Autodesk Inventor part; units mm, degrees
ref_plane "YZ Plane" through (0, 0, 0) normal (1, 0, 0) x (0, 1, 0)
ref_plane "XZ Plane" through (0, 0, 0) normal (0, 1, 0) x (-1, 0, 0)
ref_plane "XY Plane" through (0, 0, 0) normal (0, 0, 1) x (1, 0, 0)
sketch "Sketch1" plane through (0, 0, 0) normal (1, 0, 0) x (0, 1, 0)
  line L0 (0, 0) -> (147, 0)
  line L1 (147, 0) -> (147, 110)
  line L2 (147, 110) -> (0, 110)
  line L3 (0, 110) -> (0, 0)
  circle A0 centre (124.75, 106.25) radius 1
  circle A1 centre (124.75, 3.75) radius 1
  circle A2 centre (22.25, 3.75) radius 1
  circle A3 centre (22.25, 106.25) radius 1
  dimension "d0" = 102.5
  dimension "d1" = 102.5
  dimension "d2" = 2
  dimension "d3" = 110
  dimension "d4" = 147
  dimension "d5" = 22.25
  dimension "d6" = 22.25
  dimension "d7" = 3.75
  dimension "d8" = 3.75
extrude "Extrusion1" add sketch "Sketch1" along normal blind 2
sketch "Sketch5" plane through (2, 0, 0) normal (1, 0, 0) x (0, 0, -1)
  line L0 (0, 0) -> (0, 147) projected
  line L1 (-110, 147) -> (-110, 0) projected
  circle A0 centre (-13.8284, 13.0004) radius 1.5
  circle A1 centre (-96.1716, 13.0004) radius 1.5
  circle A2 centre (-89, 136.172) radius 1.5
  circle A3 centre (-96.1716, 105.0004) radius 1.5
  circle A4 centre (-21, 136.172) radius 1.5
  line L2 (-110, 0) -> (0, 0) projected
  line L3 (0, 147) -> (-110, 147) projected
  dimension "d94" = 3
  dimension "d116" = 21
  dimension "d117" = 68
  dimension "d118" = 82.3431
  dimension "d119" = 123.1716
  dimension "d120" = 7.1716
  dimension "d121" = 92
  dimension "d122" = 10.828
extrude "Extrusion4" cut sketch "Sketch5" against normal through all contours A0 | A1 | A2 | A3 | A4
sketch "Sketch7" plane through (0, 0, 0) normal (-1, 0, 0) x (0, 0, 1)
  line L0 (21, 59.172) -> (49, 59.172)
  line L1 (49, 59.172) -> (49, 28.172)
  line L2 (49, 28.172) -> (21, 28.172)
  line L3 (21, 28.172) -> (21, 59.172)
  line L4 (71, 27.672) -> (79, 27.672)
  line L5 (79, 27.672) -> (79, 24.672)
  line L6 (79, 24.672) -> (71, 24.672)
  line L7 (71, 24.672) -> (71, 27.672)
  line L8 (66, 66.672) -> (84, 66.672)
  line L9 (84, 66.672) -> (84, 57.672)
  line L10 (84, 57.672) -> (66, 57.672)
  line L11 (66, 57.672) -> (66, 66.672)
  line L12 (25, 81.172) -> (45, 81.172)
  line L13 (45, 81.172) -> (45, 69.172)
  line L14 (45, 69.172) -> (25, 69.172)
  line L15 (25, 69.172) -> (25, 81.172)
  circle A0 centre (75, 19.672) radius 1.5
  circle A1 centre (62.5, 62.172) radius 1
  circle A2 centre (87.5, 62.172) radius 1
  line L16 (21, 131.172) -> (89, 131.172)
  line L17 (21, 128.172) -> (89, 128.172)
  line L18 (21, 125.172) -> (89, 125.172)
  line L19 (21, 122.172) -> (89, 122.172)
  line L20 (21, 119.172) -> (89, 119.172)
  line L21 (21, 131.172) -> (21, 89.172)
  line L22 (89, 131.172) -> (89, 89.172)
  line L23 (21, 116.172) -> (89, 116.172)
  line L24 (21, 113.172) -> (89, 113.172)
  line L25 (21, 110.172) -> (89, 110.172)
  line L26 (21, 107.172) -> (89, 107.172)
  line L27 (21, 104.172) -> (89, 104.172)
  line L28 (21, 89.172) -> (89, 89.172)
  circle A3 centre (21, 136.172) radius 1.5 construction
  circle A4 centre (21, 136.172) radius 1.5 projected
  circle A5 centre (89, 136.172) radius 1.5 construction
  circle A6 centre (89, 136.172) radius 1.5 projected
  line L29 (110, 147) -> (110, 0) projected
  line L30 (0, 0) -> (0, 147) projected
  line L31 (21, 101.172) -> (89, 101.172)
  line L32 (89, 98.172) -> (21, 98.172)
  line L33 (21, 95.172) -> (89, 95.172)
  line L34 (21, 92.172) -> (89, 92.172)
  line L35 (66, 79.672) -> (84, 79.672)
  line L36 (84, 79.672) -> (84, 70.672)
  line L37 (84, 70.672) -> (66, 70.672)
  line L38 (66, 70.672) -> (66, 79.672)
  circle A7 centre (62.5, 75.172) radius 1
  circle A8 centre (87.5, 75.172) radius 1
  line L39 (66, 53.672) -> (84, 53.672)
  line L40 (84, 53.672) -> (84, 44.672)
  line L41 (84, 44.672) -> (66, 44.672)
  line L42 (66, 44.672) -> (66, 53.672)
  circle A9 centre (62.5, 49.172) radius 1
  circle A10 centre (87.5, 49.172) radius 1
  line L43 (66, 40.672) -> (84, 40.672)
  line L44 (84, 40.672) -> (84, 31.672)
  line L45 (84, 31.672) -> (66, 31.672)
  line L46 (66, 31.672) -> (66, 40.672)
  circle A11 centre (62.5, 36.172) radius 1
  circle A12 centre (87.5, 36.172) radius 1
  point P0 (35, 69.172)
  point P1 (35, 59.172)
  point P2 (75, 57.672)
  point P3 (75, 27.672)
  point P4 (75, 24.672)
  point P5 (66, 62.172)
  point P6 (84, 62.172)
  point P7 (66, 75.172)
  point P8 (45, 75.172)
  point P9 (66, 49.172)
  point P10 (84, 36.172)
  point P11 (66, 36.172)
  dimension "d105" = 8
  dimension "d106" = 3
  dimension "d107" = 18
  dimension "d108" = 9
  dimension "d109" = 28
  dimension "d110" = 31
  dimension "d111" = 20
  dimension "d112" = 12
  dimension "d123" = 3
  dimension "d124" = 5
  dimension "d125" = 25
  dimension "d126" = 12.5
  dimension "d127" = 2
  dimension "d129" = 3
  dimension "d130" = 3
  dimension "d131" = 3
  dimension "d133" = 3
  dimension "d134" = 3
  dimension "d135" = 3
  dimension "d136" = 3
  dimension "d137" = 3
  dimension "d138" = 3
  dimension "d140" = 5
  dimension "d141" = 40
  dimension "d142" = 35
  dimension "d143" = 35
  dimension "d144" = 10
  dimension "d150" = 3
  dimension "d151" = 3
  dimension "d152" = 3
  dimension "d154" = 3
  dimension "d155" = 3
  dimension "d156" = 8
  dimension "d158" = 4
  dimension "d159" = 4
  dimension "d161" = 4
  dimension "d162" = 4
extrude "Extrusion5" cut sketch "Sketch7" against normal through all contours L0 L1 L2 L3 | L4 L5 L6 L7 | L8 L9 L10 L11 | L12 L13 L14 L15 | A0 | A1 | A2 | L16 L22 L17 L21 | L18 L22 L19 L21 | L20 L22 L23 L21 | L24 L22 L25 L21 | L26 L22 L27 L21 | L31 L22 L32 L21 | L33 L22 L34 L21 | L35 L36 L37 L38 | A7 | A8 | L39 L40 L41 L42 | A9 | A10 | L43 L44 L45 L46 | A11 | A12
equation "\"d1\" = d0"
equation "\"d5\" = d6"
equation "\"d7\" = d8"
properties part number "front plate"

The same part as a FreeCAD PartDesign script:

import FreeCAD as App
import Part
import Sketcher

V = App.Vector
Q = App.Units.Quantity


def add_polygon(sketch, points):
    """Adds a closed chain of lines whose ends are joined by coincident constraints."""
    first, n = sketch.GeometryCount, len(points)
    for a, b in zip(points, points[1:] + points[:1]):
        sketch.addGeometry(Part.LineSegment(App.Vector(*a, 0), App.Vector(*b, 0)), False)
    for i in range(n):
        sketch.addConstraint(Sketcher.Constraint("Coincident", first + i, 2, first + (i + 1) % n, 1))

doc = App.newDocument("Part")
body = doc.addObject("PartDesign::Body", "Body")

# Sketch on YZ plane
sketch1 = doc.addObject("Sketcher::SketchObject", "Sketch")
body.addObject(sketch1)
sketch1.AttachmentSupport = (doc.YZ_Plane, [""])
sketch1.MapMode = "FlatFace"
add_polygon(sketch1, [(0, 110), (0, 0), (147, 0), (147, 110)])  # lines 0-3
sketch1.addGeometry(Part.Circle(V(22.25, 3.75, 0), V(0, 0, 1), 1), False)  # 4
sketch1.addGeometry(Part.Circle(V(124.75, 3.75, 0), V(0, 0, 1), 1), False)  # 5
sketch1.addGeometry(Part.Circle(V(22.25, 106.25, 0), V(0, 0, 1), 1), False)  # 6
sketch1.addGeometry(Part.Circle(V(124.75, 106.25, 0), V(0, 0, 1), 1), False)  # 7
sketch1.addConstraint([
    Sketcher.Constraint("Vertical", 0),
    Sketcher.Constraint("Horizontal", 1),
    Sketcher.Constraint("Vertical", 2),
    Sketcher.Constraint("Horizontal", 3),
    Sketcher.Constraint("Coincident", 0, 2, -1, 1),
    Sketcher.Constraint("Equal", 4, 5),
    Sketcher.Constraint("Equal", 5, 6),
    Sketcher.Constraint("Equal", 6, 7),
    Sketcher.Constraint("Horizontal", 4, 3, 5, 3),
    Sketcher.Constraint("Horizontal", 6, 3, 7, 3),
    Sketcher.Constraint("Vertical", 4, 3, 6, 3),
    Sketcher.Constraint("Vertical", 5, 3, 7, 3),
    Sketcher.Constraint("Diameter", 4, Q("2 mm")),
    Sketcher.Constraint("DistanceX", 1, 1, 1, 2, Q("147 mm")),
    Sketcher.Constraint("DistanceY", 0, 2, 0, 1, Q("110 mm")),
    Sketcher.Constraint("DistanceX", 4, 3, 5, 3, Q("102.5 mm")),
    Sketcher.Constraint("DistanceY", 4, 3, 6, 3, Q("102.5 mm")),
    Sketcher.Constraint("DistanceX", -1, 1, 4, 3, Q("22.25 mm")),
    Sketcher.Constraint("DistanceY", -1, 1, 4, 3, Q("3.75 mm")),
])
pad1 = doc.addObject("PartDesign::Pad", "Pad")
body.addObject(pad1)
pad1.Profile = sketch1
pad1.Length = 2

# Sketch on YZ plane
sketch2 = doc.addObject("Sketcher::SketchObject", "Sketch001")
body.addObject(sketch2)
sketch2.AttachmentSupport = (doc.YZ_Plane, [""])
sketch2.MapMode = "FlatFace"
sketch2.AttachmentOffset = App.Placement(V(0, 0, 2), App.Rotation())
sketch2.addGeometry([
    Part.Circle(V(13.0004, 13.8284, 0), V(0, 0, 1), 1.5),  # 0
    Part.Circle(V(13.0004, 96.1716, 0), V(0, 0, 1), 1.5),  # 1
    Part.Circle(V(136.172, 89, 0), V(0, 0, 1), 1.5),  # 2
    Part.Circle(V(105.0004, 96.1716, 0), V(0, 0, 1), 1.5),  # 3
    Part.Circle(V(136.172, 21, 0), V(0, 0, 1), 1.5),  # 4
], False)
sketch2.addConstraint([
    Sketcher.Constraint("Equal", 0, 1),
    Sketcher.Constraint("Equal", 1, 2),
    Sketcher.Constraint("Equal", 2, 3),
    Sketcher.Constraint("Equal", 3, 4),
    Sketcher.Constraint("Horizontal", 1, 3, 3, 3),
    Sketcher.Constraint("Vertical", 0, 3, 1, 3),
    Sketcher.Constraint("Vertical", 2, 3, 4, 3),
    Sketcher.Constraint("Diameter", 0, Q("3 mm")),
    Sketcher.Constraint("DistanceY", -1, 1, 4, 3, Q("21 mm")),
    Sketcher.Constraint("DistanceX", 1, 3, 3, 3, Q("92 mm")),
    Sketcher.Constraint("DistanceY", 4, 3, 2, 3, Q("68 mm")),
    Sketcher.Constraint("DistanceY", 0, 3, 1, 3, Q("82.3432 mm")),
    Sketcher.Constraint("DistanceX", 1, 3, 2, 3, Q("123.1716 mm")),
    Sketcher.Constraint("DistanceY", 2, 3, 1, 3, Q("7.1716 mm")),
    Sketcher.Constraint("DistanceX", -1, 1, 2, 3, Q("136.172 mm")),
])
pocket1 = doc.addObject("PartDesign::Pocket", "Pocket")
body.addObject(pocket1)
pocket1.Profile = sketch2
pocket1.Type = "ThroughAll"

# Sketch on YZ plane
sketch3 = doc.addObject("Sketcher::SketchObject", "Sketch002")
body.addObject(sketch3)
sketch3.AttachmentSupport = (doc.YZ_Plane, [""])
sketch3.MapMode = "FlatFace"
add_polygon(sketch3, [(59.172, 49), (59.172, 21), (28.172, 21), (28.172, 49)])  # lines 0-3
add_polygon(sketch3, [(27.672, 79), (27.672, 71), (24.672, 71), (24.672, 79)])  # lines 4-7
add_polygon(sketch3, [(66.672, 84), (66.672, 66), (57.672, 66), (57.672, 84)])  # lines 8-11
add_polygon(sketch3, [(81.172, 45), (81.172, 25), (69.172, 25), (69.172, 45)])  # lines 12-15
sketch3.addGeometry(Part.Circle(V(19.672, 75, 0), V(0, 0, 1), 1.5), False)  # 16
sketch3.addGeometry(Part.Circle(V(62.172, 62.5, 0), V(0, 0, 1), 1), False)  # 17
sketch3.addGeometry(Part.Circle(V(62.172, 87.5, 0), V(0, 0, 1), 1), False)  # 18
add_polygon(sketch3, [(131.172, 89), (131.172, 21), (128.172, 21), (128.172, 89)])  # lines 19-22
add_polygon(sketch3, [(125.172, 89), (125.172, 21), (122.172, 21), (122.172, 89)])  # lines 23-26
add_polygon(sketch3, [(119.172, 89), (119.172, 21), (116.172, 21), (116.172, 89)])  # lines 27-30
add_polygon(sketch3, [(113.172, 89), (113.172, 21), (110.172, 21), (110.172, 89)])  # lines 31-34
add_polygon(sketch3, [(107.172, 89), (107.172, 21), (104.172, 21), (104.172, 89)])  # lines 35-38
add_polygon(sketch3, [(101.172, 89), (101.172, 21), (98.172, 21), (98.172, 89)])  # lines 39-42
add_polygon(sketch3, [(95.172, 89), (95.172, 21), (92.172, 21), (92.172, 89)])  # lines 43-46
add_polygon(sketch3, [(79.672, 84), (79.672, 66), (70.672, 66), (70.672, 84)])  # lines 47-50
sketch3.addGeometry(Part.Circle(V(75.172, 62.5, 0), V(0, 0, 1), 1), False)  # 51
sketch3.addGeometry(Part.Circle(V(75.172, 87.5, 0), V(0, 0, 1), 1), False)  # 52
add_polygon(sketch3, [(53.672, 84), (53.672, 66), (44.672, 66), (44.672, 84)])  # lines 53-56
sketch3.addGeometry(Part.Circle(V(49.172, 62.5, 0), V(0, 0, 1), 1), False)  # 57
sketch3.addGeometry(Part.Circle(V(49.172, 87.5, 0), V(0, 0, 1), 1), False)  # 58
add_polygon(sketch3, [(40.672, 84), (40.672, 66), (31.672, 66), (31.672, 84)])  # lines 59-62
sketch3.addGeometry(Part.Circle(V(36.172, 62.5, 0), V(0, 0, 1), 1), False)  # 63
sketch3.addGeometry(Part.Circle(V(36.172, 87.5, 0), V(0, 0, 1), 1), False)  # 64
sketch3.addConstraint([
    Sketcher.Constraint("Vertical", 0),
    Sketcher.Constraint("Horizontal", 1),
    Sketcher.Constraint("Vertical", 2),
    Sketcher.Constraint("Horizontal", 3),
    Sketcher.Constraint("Vertical", 4),
    Sketcher.Constraint("Horizontal", 5),
    Sketcher.Constraint("Vertical", 6),
    Sketcher.Constraint("Horizontal", 7),
    Sketcher.Constraint("Vertical", 8),
    Sketcher.Constraint("Horizontal", 9),
    Sketcher.Constraint("Vertical", 10),
    Sketcher.Constraint("Horizontal", 11),
    Sketcher.Constraint("Vertical", 12),
    Sketcher.Constraint("Horizontal", 13),
    Sketcher.Constraint("Vertical", 14),
    Sketcher.Constraint("Horizontal", 15),
    Sketcher.Constraint("Vertical", 19),
    Sketcher.Constraint("Horizontal", 20),
    Sketcher.Constraint("Vertical", 21),
    Sketcher.Constraint("Horizontal", 22),
    Sketcher.Constraint("Vertical", 23),
    Sketcher.Constraint("Horizontal", 24),
    Sketcher.Constraint("Vertical", 25),
    Sketcher.Constraint("Horizontal", 26),
    Sketcher.Constraint("Vertical", 27),
    Sketcher.Constraint("Horizontal", 28),
    Sketcher.Constraint("Vertical", 29),
    Sketcher.Constraint("Horizontal", 30),
    Sketcher.Constraint("Vertical", 31),
    Sketcher.Constraint("Horizontal", 32),
    Sketcher.Constraint("Vertical", 33),
    Sketcher.Constraint("Horizontal", 34),
    Sketcher.Constraint("Vertical", 35),
    Sketcher.Constraint("Horizontal", 36),
    Sketcher.Constraint("Vertical", 37),
    Sketcher.Constraint("Horizontal", 38),
    Sketcher.Constraint("Vertical", 39),
    Sketcher.Constraint("Horizontal", 40),
    Sketcher.Constraint("Vertical", 41),
    Sketcher.Constraint("Horizontal", 42),
    Sketcher.Constraint("Vertical", 43),
    Sketcher.Constraint("Horizontal", 44),
    Sketcher.Constraint("Vertical", 45),
    Sketcher.Constraint("Horizontal", 46),
    Sketcher.Constraint("Vertical", 47),
    Sketcher.Constraint("Horizontal", 48),
    Sketcher.Constraint("Vertical", 49),
    Sketcher.Constraint("Horizontal", 50),
    Sketcher.Constraint("Vertical", 53),
    Sketcher.Constraint("Horizontal", 54),
    Sketcher.Constraint("Vertical", 55),
    Sketcher.Constraint("Horizontal", 56),
    Sketcher.Constraint("Vertical", 59),
    Sketcher.Constraint("Horizontal", 60),
    Sketcher.Constraint("Vertical", 61),
    Sketcher.Constraint("Horizontal", 62),
    Sketcher.Constraint("Equal", 17, 18),
    Sketcher.Constraint("Equal", 18, 51),
    Sketcher.Constraint("Equal", 51, 52),
    Sketcher.Constraint("Equal", 52, 57),
    Sketcher.Constraint("Equal", 57, 58),
    Sketcher.Constraint("Equal", 58, 63),
    Sketcher.Constraint("Equal", 63, 64),
    Sketcher.Constraint("Horizontal", 17, 3, 51, 3),
    Sketcher.Constraint("Horizontal", 18, 3, 52, 3),
    Sketcher.Constraint("Horizontal", 51, 3, 57, 3),
    Sketcher.Constraint("Horizontal", 52, 3, 58, 3),
    Sketcher.Constraint("Horizontal", 57, 3, 63, 3),
    Sketcher.Constraint("Horizontal", 58, 3, 64, 3),
    Sketcher.Constraint("Horizontal", 1, 2, 19, 2),
    Sketcher.Constraint("Horizontal", 20, 2, 23, 2),
    Sketcher.Constraint("Horizontal", 22, 2, 25, 2),
    Sketcher.Constraint("Horizontal", 24, 2, 27, 2),
    Sketcher.Constraint("Horizontal", 26, 2, 29, 2),
    Sketcher.Constraint("Horizontal", 28, 2, 31, 2),
    Sketcher.Constraint("Horizontal", 30, 2, 33, 2),
    Sketcher.Constraint("Horizontal", 32, 2, 35, 2),
    Sketcher.Constraint("Horizontal", 34, 2, 37, 2),
    Sketcher.Constraint("Horizontal", 36, 2, 39, 2),
    Sketcher.Constraint("Horizontal", 38, 2, 41, 2),
    Sketcher.Constraint("Horizontal", 40, 2, 43, 2),
    Sketcher.Constraint("Horizontal", 42, 2, 45, 2),
    Sketcher.Constraint("Horizontal", 9, 2, 47, 2),
    Sketcher.Constraint("Horizontal", 11, 2, 49, 2),
    Sketcher.Constraint("Horizontal", 48, 2, 53, 2),
    Sketcher.Constraint("Horizontal", 50, 2, 55, 2),
    Sketcher.Constraint("Horizontal", 54, 2, 59, 2),
    Sketcher.Constraint("Horizontal", 56, 2, 61, 2),
    Sketcher.Constraint("Vertical", 17, 3, 18, 3),
    Sketcher.Constraint("Vertical", 51, 3, 52, 3),
    Sketcher.Constraint("Vertical", 57, 3, 58, 3),
    Sketcher.Constraint("Vertical", 63, 3, 64, 3),
    Sketcher.Constraint("Equal", 7, 20),
    Sketcher.Constraint("Equal", 22, 24),
    Sketcher.Constraint("Equal", 26, 28),
    Sketcher.Constraint("Equal", 30, 32),
    Sketcher.Constraint("Equal", 34, 36),
    Sketcher.Constraint("Equal", 38, 40),
    Sketcher.Constraint("Equal", 42, 44),
    Sketcher.Constraint("Equal", 11, 48),
    Sketcher.Constraint("Equal", 50, 54),
    Sketcher.Constraint("Equal", 56, 60),
    Sketcher.Constraint("Diameter", 16, Q("3 mm")),
    Sketcher.Constraint("Diameter", 17, Q("2 mm")),
    Sketcher.Constraint("DistanceX", 1, 2, 1, 1, Q("31 mm")),
    Sketcher.Constraint("DistanceX", 5, 2, 5, 1, Q("3 mm")),
    Sketcher.Constraint("DistanceX", 9, 2, 9, 1, Q("9 mm")),
    Sketcher.Constraint("DistanceX", 13, 2, 13, 1, Q("12 mm")),
    Sketcher.Constraint("DistanceY", 0, 2, 0, 1, Q("28 mm")),
    Sketcher.Constraint("DistanceY", 4, 2, 4, 1, Q("8 mm")),
    Sketcher.Constraint("DistanceY", 8, 2, 8, 1, Q("18 mm")),
    Sketcher.Constraint("DistanceY", 12, 2, 12, 1, Q("20 mm")),
    Sketcher.Constraint("DistanceY", -1, 1, 12, 2, Q("25 mm")),
    Sketcher.Constraint("DistanceY", 19, 2, 19, 1, Q("68 mm")),
    Sketcher.Constraint("DistanceY", -1, 1, 16, 3, Q("75 mm")),
    Sketcher.Constraint("DistanceY", -1, 1, 0, 2, Q("21 mm")),
    Sketcher.Constraint("DistanceY", -1, 1, 4, 2, Q("71 mm")),
    Sketcher.Constraint("DistanceY", -1, 1, 8, 2, Q("66 mm")),
    Sketcher.Constraint("DistanceY", -1, 1, 17, 3, Q("62.5 mm")),
    Sketcher.Constraint("DistanceY", -1, 1, 18, 3, Q("87.5 mm")),
    Sketcher.Constraint("DistanceX", -1, 1, 16, 3, Q("19.672 mm")),
    Sketcher.Constraint("DistanceX", -1, 1, 17, 3, Q("62.172 mm")),
    Sketcher.Constraint("DistanceX", -1, 1, 51, 3, Q("75.172 mm")),
    Sketcher.Constraint("DistanceX", -1, 1, 57, 3, Q("49.172 mm")),
    Sketcher.Constraint("DistanceX", -1, 1, 63, 3, Q("36.172 mm")),
    Sketcher.Constraint("DistanceX", -1, 1, 0, 2, Q("59.172 mm")),
    Sketcher.Constraint("DistanceX", -1, 1, 4, 2, Q("27.672 mm")),
    Sketcher.Constraint("DistanceX", -1, 1, 8, 2, Q("66.672 mm")),
    Sketcher.Constraint("DistanceX", -1, 1, 12, 2, Q("81.172 mm")),
    Sketcher.Constraint("DistanceX", -1, 1, 19, 2, Q("131.172 mm")),
    Sketcher.Constraint("DistanceX", -1, 1, 23, 2, Q("125.172 mm")),
    Sketcher.Constraint("DistanceX", -1, 1, 27, 2, Q("119.172 mm")),
    Sketcher.Constraint("DistanceX", -1, 1, 31, 2, Q("113.172 mm")),
    Sketcher.Constraint("DistanceX", -1, 1, 35, 2, Q("107.172 mm")),
    Sketcher.Constraint("DistanceX", -1, 1, 39, 2, Q("101.172 mm")),
    Sketcher.Constraint("DistanceX", -1, 1, 43, 2, Q("95.172 mm")),
    Sketcher.Constraint("DistanceX", -1, 1, 47, 2, Q("79.672 mm")),
    Sketcher.Constraint("DistanceX", -1, 1, 53, 2, Q("53.672 mm")),
    Sketcher.Constraint("DistanceX", -1, 1, 59, 2, Q("40.672 mm")),
])
pocket2 = doc.addObject("PartDesign::Pocket", "Pocket001")
body.addObject(pocket2)
pocket2.Profile = sketch3
pocket2.Type = "ThroughAll"
pocket2.Reversed = True

doc.recompute()
